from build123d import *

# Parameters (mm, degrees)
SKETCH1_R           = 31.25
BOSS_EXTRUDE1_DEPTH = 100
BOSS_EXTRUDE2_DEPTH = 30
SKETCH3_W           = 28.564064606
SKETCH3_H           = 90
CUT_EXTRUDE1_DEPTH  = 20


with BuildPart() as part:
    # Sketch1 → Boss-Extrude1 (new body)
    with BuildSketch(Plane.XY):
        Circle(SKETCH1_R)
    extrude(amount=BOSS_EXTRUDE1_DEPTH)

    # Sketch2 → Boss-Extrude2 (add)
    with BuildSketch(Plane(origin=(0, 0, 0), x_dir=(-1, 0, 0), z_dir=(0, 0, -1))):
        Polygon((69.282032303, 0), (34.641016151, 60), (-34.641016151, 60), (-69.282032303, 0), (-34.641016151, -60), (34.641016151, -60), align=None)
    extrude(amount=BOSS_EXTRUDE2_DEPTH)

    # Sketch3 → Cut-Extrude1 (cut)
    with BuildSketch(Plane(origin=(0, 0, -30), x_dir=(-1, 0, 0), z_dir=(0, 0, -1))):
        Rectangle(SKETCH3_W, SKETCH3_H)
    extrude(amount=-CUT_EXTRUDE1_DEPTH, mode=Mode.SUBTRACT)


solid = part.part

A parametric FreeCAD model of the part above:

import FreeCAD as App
import Part
import Sketcher
Q = App.Units.Quantity


def add_polygon(sketch, points):
    """Adds a closed chain of lines whose ends are joined by coincident constraints."""
    first, n = sketch.GeometryCount, len(points)
    for a, b in zip(points, points[1:] + points[:1]):
        sketch.addGeometry(Part.LineSegment(App.Vector(*a, 0), App.Vector(*b, 0)), False)
    for i in range(n):
        sketch.addConstraint(Sketcher.Constraint("Coincident", first + i, 2, first + (i + 1) % n, 1))

doc = App.newDocument("Part")
params = doc.addObject("Spreadsheet::Sheet", "Params")
for row, (alias, value) in enumerate([
    ("sketch1_diameter", "62.5 mm"),
    ("pad1_length", "100 mm"),
    ("pad2_length", "30 mm"),
    ("sketch3_height", "90 mm"),
    ("pocket1_length", "20 mm"),
], start=1):
    params.set(f"A{row}", alias)
    params.set(f"B{row}", "=" + value)
    params.setAlias(f"B{row}", alias)

body = doc.addObject("PartDesign::Body", "Body")

# Sketch on XY plane
sketch1 = body.newObject("Sketcher::SketchObject", "Sketch")
sketch1.AttachmentSupport = (doc.getObject("XY_Plane"), [""])
sketch1.MapMode = "FlatFace"
sketch1.addGeometry(Part.Circle(App.Vector(0, 0, 0), App.Vector(0, 0, 1), 31), False)
sketch1.addConstraint(Sketcher.Constraint("Coincident", 0, 3, -1, 1))
sketch1.addConstraint(Sketcher.Constraint("Diameter", 0, Q("62.5 mm")))
sketch1.setExpression("Constraints[1]", "Params.sketch1_diameter")
pad1 = body.newObject("PartDesign::Pad", "Pad")
pad1.Profile = sketch1
pad1.setExpression("Length", "Params.pad1_length")

# Sketch on XY plane
sketch2 = body.newObject("Sketcher::SketchObject", "Sketch001")
sketch2.AttachmentSupport = (doc.getObject("XY_Plane"), [""])
sketch2.MapMode = "FlatFace"
add_polygon(sketch2, [(-69, 0), (-35, 60), (35, 60), (69, 0), (35, -60), (-35, -60)])  # lines 0-5
sketch2.addConstraint(Sketcher.Constraint("Horizontal", 1))
sketch2.addConstraint(Sketcher.Constraint("Horizontal", 4))
sketch2.addConstraint(Sketcher.Constraint("Symmetric", 0, 2, 3, 2, -1, 1))
sketch2.addConstraint(Sketcher.Constraint("Symmetric", 2, 2, 5, 2, -1, 1))
sketch2.addConstraint(Sketcher.Constraint("PointOnObject", 2, 2, -1))
sketch2.addConstraint(Sketcher.Constraint("Parallel", 2, 5))
sketch2.addConstraint(Sketcher.Constraint("Vertical", 1, 2, 3, 2))
sketch2.addConstraint(Sketcher.Constraint("Angle", 0, Q("60 deg")))
sketch2.addConstraint(Sketcher.Constraint("DistanceY", -1, 1, 0, 2, Q("60 mm")))
sketch2.addConstraint(Sketcher.Constraint("DistanceX", 1, 1, 1, 2, Q("69.282032 mm")))
pad2 = body.newObject("PartDesign::Pad", "Pad001")
pad2.Profile = sketch2
pad2.setExpression("Length", "Params.pad2_length")
pad2.Reversed = True

# Sketch on XY plane
sketch3 = body.newObject("Sketcher::SketchObject", "Sketch002")
sketch3.AttachmentSupport = (doc.getObject("XY_Plane"), [""])
sketch3.MapMode = "FlatFace"
sketch3.AttachmentOffset = App.Placement(App.Vector(0, 0, -30), App.Rotation())
add_polygon(sketch3, [(14, 45), (14, -45), (-14, -45), (-14, 45)])  # lines 0-3
sketch3.addConstraint(Sketcher.Constraint("Vertical", 0))
sketch3.addConstraint(Sketcher.Constraint("Horizontal", 1))
sketch3.addConstraint(Sketcher.Constraint("Vertical", 2))
sketch3.addConstraint(Sketcher.Constraint("Horizontal", 3))
sketch3.addConstraint(Sketcher.Constraint("Symmetric", 0, 2, 2, 2, -1, 1))
sketch3.addConstraint(Sketcher.Constraint("DistanceY", 0, 2, 0, 1, Q("90 mm")))
sketch3.addConstraint(Sketcher.Constraint("DistanceX", 1, 2, 1, 1, Q("28.564065 mm")))
sketch3.setExpression("Constraints[9]", "Params.sketch3_height")
pocket1 = body.newObject("PartDesign::Pocket", "Pocket")
pocket1.Profile = sketch3
pocket1.setExpression("Length", "Params.pocket1_length")
pocket1.Reversed = True

doc.recompute()
